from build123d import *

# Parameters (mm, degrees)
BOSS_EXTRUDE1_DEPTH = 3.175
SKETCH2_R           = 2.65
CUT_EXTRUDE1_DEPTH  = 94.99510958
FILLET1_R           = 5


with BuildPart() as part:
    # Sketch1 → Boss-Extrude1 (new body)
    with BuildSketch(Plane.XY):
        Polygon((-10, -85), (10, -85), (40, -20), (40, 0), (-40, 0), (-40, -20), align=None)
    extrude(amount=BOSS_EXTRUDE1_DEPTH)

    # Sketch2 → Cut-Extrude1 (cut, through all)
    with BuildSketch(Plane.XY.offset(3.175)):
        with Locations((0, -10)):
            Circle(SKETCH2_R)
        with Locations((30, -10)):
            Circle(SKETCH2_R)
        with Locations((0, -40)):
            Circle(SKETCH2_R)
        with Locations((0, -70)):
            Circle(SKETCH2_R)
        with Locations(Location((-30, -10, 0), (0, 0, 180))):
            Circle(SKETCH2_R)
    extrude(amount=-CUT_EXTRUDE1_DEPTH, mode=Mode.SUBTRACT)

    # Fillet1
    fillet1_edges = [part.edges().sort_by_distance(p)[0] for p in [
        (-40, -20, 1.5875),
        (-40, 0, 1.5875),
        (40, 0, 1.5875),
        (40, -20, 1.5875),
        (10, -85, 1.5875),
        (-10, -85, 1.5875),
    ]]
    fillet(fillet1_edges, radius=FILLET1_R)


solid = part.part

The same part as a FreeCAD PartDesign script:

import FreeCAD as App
import Part
import Sketcher
from FreeCAD import Vector
Q = App.Units.Quantity


def edges_at(feature, points):
    """Names of the edges that pass closest to the given points."""
    edges = feature.Shape.Edges
    near = lambda p: min(range(len(edges)), key=lambda i: edges[i].distToShape(Part.Vertex(*p))[0])
    return sorted({f"Edge{near(p) + 1}" for p in points})


def add_polygon(sketch, points):
    """Adds a closed chain of lines whose ends are joined by coincident constraints."""
    first, n = sketch.GeometryCount, len(points)
    for a, b in zip(points, points[1:] + points[:1]):
        sketch.addGeometry(Part.LineSegment(App.Vector(*a, 0), App.Vector(*b, 0)), False)
    for i in range(n):
        sketch.addConstraint(Sketcher.Constraint("Coincident", first + i, 2, first + (i + 1) % n, 1))

doc = App.newDocument("Part")
body = doc.addObject("PartDesign::Body", "Body")

# Sketch on XY plane
sketch1 = body.newObject("Sketcher::SketchObject", "Sketch")
sketch1.AttachmentSupport = (doc.getObject("XY_Plane"), [""])
sketch1.MapMode = "FlatFace"
add_polygon(sketch1, [(-10, -85), (10, -85), (40, -20), (40, 0), (-40, 0), (-40, -20)])  # lines 0-5
sketch1.addConstraint([
    Sketcher.Constraint("Horizontal", 0),
    Sketcher.Constraint("Vertical", 2),
    Sketcher.Constraint("Horizontal", 3),
    Sketcher.Constraint("Vertical", 4),
    Sketcher.Constraint("Symmetric", 2, 2, 3, 2, -1, 1),
    Sketcher.Constraint("Horizontal", 1, 2, 4, 2),
    Sketcher.Constraint("Equal", 0, 2),
    Sketcher.Constraint("Equal", 1, 5),
    Sketcher.Constraint("DistanceX", 0, 1, 0, 2, Q("20 mm")),
    Sketcher.Constraint("DistanceX", 3, 2, 3, 1, Q("80 mm")),
    Sketcher.Constraint("DistanceY", 0, 2, -1, 1, Q("85 mm")),
])
pad1 = body.newObject("PartDesign::Pad", "Pad")
pad1.Profile = sketch1
pad1.Length = 3.175

# Sketch on XY plane
sketch2 = body.newObject("Sketcher::SketchObject", "Sketch001")
sketch2.AttachmentSupport = (doc.getObject("XY_Plane"), [""])
sketch2.MapMode = "FlatFace"
sketch2.AttachmentOffset = App.Placement(Vector(0, 0, 3.175), App.Rotation())
sketch2.addGeometry([
    Part.Circle(Vector(0, -10, 0), Vector(0, 0, 1), 2.65),  # 0
    Part.Circle(Vector(30, -10, 0), Vector(0, 0, 1), 2.65),  # 1
    Part.Circle(Vector(0, -40, 0), Vector(0, 0, 1), 2.65),  # 2
    Part.Circle(Vector(0, -70, 0), Vector(0, 0, 1), 2.65),  # 3
    Part.Circle(Vector(-30, -10, 0), Vector(0, 0, 1), 2.65),  # 4
], False)
sketch2.addConstraint([
    Sketcher.Constraint("Equal", 0, 1),
    Sketcher.Constraint("Equal", 1, 2),
    Sketcher.Constraint("Equal", 2, 3),
    Sketcher.Constraint("Equal", 3, 4),
    Sketcher.Constraint("Symmetric", 1, 3, 4, 3, -2),
    Sketcher.Constraint("PointOnObject", 0, 3, -2),
    Sketcher.Constraint("PointOnObject", 2, 3, -2),
    Sketcher.Constraint("PointOnObject", 3, 3, -2),
    Sketcher.Constraint("Horizontal", 0, 3, 1, 3),
    Sketcher.Constraint("Diameter", 0, Q("5.3 mm")),
    Sketcher.Constraint("DistanceY", 0, 3, -1, 1, Q("10 mm")),
    Sketcher.Constraint("DistanceX", -1, 1, 1, 3, Q("30 mm")),
    Sketcher.Constraint("DistanceY", 2, 3, -1, 1, Q("40 mm")),
    Sketcher.Constraint("DistanceY", 3, 3, -1, 1, Q("70 mm")),
])
pocket1 = body.newObject("PartDesign::Pocket", "Pocket")
pocket1.Profile = sketch2
pocket1.Type = "ThroughAll"
doc.recompute()

fillet = body.newObject("PartDesign::Fillet", "Fillet")
fillet.Base = (pocket1, edges_at(pocket1, [
    (-40, -20, 1.587),
    (-40, 0, 1.587),
    (40, 0, 1.587),
    (40, -20, 1.587),
    (10, -85, 1.587),
    (-10, -85, 1.587),
]))
fillet.Radius = 5

doc.recompute()
